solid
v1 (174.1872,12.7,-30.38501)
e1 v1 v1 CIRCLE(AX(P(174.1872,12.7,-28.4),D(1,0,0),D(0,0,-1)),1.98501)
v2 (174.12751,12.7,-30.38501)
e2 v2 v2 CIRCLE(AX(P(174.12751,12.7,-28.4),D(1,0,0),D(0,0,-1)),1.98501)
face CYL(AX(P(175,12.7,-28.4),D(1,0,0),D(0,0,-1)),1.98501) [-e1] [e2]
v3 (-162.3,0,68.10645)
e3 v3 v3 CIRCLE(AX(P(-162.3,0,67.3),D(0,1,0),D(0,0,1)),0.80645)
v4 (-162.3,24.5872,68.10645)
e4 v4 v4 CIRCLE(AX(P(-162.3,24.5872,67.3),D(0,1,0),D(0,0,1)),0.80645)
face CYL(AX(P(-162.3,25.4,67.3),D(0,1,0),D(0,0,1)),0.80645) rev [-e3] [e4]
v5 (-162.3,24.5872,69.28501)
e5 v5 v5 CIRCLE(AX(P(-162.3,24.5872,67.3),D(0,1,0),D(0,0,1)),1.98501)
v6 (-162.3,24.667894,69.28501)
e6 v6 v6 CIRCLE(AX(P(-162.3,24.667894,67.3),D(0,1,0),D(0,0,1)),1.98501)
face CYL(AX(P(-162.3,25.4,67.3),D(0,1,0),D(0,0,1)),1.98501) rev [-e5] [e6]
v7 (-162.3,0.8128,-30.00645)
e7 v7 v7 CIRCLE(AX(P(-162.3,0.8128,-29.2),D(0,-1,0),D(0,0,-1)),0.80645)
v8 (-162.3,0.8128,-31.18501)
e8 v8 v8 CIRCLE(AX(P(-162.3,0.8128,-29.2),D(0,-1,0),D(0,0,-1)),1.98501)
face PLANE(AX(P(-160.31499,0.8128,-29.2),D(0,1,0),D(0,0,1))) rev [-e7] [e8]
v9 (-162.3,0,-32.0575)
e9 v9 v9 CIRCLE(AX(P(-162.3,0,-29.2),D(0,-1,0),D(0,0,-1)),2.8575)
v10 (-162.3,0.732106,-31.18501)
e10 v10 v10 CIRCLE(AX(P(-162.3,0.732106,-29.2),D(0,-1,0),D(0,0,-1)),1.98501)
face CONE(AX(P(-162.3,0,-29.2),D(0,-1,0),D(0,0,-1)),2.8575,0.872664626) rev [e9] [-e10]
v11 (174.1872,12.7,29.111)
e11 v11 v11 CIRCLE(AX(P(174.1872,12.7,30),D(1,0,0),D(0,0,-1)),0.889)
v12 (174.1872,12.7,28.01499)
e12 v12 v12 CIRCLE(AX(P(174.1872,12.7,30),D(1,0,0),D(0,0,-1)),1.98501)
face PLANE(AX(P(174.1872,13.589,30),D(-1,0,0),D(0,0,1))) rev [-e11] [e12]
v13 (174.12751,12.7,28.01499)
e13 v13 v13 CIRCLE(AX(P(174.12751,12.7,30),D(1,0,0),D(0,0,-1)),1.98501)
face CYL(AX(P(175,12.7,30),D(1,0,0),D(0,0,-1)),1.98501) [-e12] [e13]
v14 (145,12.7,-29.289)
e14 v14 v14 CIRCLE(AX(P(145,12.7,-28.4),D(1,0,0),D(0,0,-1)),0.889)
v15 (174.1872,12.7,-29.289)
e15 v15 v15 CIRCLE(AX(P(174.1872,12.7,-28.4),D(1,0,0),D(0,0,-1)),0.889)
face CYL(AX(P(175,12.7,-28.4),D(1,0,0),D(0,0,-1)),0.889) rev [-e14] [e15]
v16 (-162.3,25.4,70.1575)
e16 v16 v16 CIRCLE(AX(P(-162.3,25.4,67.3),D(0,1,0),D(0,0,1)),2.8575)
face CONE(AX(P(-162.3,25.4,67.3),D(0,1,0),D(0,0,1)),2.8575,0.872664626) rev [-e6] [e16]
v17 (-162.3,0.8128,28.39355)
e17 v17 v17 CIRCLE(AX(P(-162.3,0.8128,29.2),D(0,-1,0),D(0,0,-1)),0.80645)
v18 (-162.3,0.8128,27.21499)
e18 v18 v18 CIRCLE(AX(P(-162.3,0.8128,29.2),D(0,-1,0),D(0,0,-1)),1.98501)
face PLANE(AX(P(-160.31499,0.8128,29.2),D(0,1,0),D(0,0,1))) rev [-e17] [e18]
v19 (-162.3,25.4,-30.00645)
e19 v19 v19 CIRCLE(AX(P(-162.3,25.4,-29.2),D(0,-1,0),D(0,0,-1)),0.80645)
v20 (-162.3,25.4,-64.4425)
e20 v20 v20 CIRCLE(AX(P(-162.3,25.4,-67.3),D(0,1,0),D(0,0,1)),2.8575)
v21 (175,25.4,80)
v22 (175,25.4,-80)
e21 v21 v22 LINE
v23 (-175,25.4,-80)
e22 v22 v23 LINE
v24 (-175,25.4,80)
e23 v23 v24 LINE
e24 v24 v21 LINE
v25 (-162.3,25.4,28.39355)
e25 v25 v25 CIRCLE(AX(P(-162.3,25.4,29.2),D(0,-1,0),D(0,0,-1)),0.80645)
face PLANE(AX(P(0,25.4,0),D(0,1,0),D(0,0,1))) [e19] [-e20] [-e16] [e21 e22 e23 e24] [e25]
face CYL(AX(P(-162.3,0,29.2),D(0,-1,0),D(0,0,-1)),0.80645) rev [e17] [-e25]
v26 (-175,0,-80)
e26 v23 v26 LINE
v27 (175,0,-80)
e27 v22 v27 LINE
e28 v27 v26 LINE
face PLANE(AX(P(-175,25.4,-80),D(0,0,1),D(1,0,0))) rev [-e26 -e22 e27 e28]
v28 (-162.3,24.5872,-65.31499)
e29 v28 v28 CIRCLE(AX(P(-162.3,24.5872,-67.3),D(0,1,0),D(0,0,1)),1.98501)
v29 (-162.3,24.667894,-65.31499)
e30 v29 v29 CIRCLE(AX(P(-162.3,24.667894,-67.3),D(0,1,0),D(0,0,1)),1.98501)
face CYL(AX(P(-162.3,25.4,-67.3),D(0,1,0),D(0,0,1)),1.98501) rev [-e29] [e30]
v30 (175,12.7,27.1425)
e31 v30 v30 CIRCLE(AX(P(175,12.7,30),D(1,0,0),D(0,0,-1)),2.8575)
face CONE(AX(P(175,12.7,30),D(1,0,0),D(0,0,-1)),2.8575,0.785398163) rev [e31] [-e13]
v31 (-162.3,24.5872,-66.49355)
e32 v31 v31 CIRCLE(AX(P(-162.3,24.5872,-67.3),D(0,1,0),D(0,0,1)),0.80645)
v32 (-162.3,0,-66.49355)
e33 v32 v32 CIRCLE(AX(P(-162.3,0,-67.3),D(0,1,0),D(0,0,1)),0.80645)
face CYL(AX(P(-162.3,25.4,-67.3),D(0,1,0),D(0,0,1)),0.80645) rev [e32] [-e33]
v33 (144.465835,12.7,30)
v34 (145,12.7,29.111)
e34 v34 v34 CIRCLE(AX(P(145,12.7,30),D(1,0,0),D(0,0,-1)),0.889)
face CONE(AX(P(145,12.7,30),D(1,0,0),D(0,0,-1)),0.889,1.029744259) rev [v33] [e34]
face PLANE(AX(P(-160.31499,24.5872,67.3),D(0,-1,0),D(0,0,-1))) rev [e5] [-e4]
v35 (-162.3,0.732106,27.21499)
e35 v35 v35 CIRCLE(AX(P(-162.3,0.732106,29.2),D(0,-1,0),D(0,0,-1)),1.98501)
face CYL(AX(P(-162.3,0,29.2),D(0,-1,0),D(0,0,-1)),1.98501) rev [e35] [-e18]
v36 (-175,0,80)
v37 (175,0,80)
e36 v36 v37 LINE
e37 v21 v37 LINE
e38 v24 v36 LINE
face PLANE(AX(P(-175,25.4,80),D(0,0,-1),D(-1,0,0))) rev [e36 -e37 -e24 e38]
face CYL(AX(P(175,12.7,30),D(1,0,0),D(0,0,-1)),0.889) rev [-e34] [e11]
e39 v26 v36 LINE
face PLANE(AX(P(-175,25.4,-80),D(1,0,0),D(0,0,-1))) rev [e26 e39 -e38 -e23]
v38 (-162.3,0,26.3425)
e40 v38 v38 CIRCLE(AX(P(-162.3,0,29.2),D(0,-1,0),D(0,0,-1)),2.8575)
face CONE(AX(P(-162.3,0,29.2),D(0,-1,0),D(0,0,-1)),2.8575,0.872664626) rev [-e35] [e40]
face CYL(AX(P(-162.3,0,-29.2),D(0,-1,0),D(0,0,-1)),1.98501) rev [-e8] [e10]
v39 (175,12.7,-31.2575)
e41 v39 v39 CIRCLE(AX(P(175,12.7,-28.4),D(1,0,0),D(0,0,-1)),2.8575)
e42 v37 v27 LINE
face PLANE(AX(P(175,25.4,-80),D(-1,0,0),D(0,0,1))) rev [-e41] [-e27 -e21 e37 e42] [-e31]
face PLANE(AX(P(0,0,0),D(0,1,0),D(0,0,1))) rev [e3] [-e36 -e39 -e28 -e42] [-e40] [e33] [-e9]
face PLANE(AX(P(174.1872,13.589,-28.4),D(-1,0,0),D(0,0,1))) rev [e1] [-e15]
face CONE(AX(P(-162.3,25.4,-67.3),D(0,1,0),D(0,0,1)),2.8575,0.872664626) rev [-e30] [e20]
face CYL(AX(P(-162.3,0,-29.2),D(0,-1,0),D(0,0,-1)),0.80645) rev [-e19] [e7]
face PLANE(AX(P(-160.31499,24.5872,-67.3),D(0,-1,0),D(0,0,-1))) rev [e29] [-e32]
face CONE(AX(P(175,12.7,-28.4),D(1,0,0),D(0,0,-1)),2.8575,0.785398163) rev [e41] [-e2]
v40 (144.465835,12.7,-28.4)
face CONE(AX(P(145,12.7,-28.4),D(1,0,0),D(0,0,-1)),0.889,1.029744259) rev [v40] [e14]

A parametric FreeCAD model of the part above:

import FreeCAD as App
import Part
import Sketcher
from FreeCAD import Vector
Q = App.Units.Quantity


def add_polygon(sketch, points):
    """Adds a closed chain of lines whose ends are joined by coincident constraints."""
    first, n = sketch.GeometryCount, len(points)
    for a, b in zip(points, points[1:] + points[:1]):
        sketch.addGeometry(Part.LineSegment(App.Vector(*a, 0), App.Vector(*b, 0)), False)
    for i in range(n):
        sketch.addConstraint(Sketcher.Constraint("Coincident", first + i, 2, first + (i + 1) % n, 1))

doc = App.newDocument("Part")
params = doc.addObject("Spreadsheet::Sheet", "Params")
for row, (alias, value) in enumerate([
    ("sketch1_width", "350 mm"),
    ("sketch1_height", "160 mm"),
    ("pad1_length", "25.4 mm"),
    ("groove_angle", "360 deg"),
    ("linearpattern_pitch", "58.4 mm"),
    ("sketch3_width", "25.4 mm"),
    ("groove2_angle", "360 deg"),
    ("linearpattern2_pitch", "134.6 mm"),
    ("sketch4_width", "25.4 mm"),
    ("groove3_angle", "360 deg"),
    ("linearpattern3_pitch", "58.4 mm"),
], start=1):
    params.set(f"A{row}", alias)
    params.set(f"B{row}", "=" + value)
    params.setAlias(f"B{row}", alias)

body = doc.addObject("PartDesign::Body", "Body")

sketch1 = body.newObject("Sketcher::SketchObject", "Sketch")
sketch1.AttachmentSupport = (doc.getObject("XZ_Plane"), [""])
sketch1.MapMode = "FlatFace"
add_polygon(sketch1, [(-175, -80), (-175, 80), (175, 80), (175, -80)])
sketch1.addConstraint(Sketcher.Constraint("Vertical", 0))
sketch1.addConstraint(Sketcher.Constraint("Horizontal", 1))
sketch1.addConstraint(Sketcher.Constraint("Vertical", 2))
sketch1.addConstraint(Sketcher.Constraint("Horizontal", 3))
sketch1.addConstraint(Sketcher.Constraint("Symmetric", 0, 2, 2, 2, -1, 1))
sketch1.addConstraint(Sketcher.Constraint("DistanceX", 1, 1, 1, 2, 350.0))
sketch1.addConstraint(Sketcher.Constraint("DistanceY", 0, 1, 0, 2, 160.0))
sketch1.setExpression("Constraints[9]", "Params.sketch1_width")
sketch1.setExpression("Constraints[10]", "Params.sketch1_height")
pad1 = body.newObject("PartDesign::Pad", "Pad")
pad1.Profile = sketch1
pad1.setExpression("Length", "Params.pad1_length")
pad1.Reversed = True

sketch2 = body.newObject("Sketcher::SketchObject", "Sketch001")
sketch2.AttachmentSupport = (doc.getObject("XZ_Plane"), [""])
sketch2.MapMode = "FlatFace"
sketch2.AttachmentOffset = App.Placement(Vector(0, 0, -12.7), App.Rotation())
add_polygon(sketch2, [(144.47, 30), (175, 30), (175, 27.14), (174.13, 28.01), (174.19, 28.01), (174.19, 29.11), (145, 29.11)])
sketch2.addGeometry(Part.LineSegment(Vector(175, 30, 0), Vector(144.47, 30, 0)), True)
sketch2.addConstraint(Sketcher.Constraint("Horizontal", 0))
sketch2.addConstraint(Sketcher.Constraint("Vertical", 1))
sketch2.addConstraint(Sketcher.Constraint("Horizontal", 3))
sketch2.addConstraint(Sketcher.Constraint("Vertical", 4))
sketch2.addConstraint(Sketcher.Constraint("Horizontal", 5))
sketch2.addConstraint(Sketcher.Constraint("Horizontal", 7))
sketch2.addConstraint(Sketcher.Constraint("Coincident", 7, 1, 0, 2))
sketch2.addConstraint(Sketcher.Constraint("Equal", 0, 7))
sketch2.addConstraint(Sketcher.Constraint("Angle", 2, Q("135 deg")))
sketch2.addConstraint(Sketcher.Constraint("Angle", 6, Q("121 deg")))
sketch2.addConstraint(Sketcher.Constraint("DistanceX", -1, 1, 0, 2, 175.0))
sketch2.addConstraint(Sketcher.Constraint("DistanceY", -1, 1, 0, 2, 30.0))
sketch2.addConstraint(Sketcher.Constraint("DistanceX", -1, 1, 5, 2, 145.0))
sketch2.addConstraint(Sketcher.Constraint("DistanceX", 5, 2, 5, 1, 29.1872))
sketch2.addConstraint(Sketcher.Constraint("DistanceY", 1, 2, 1, 1, 2.8575))
sketch2.addConstraint(Sketcher.Constraint("DistanceY", -1, 1, 4, 2, 29.111))
sketch2.addConstraint(Sketcher.Constraint("DistanceX", 3, 1, 3, 2, 0.05969))
groove = body.newObject("PartDesign::Groove", "Groove")
groove.Profile = sketch2
groove.ReferenceAxis = (sketch2, ["Axis0"])
groove.setExpression("Angle", "Params.groove_angle")
doc.recompute()

linearpattern = body.newObject("PartDesign::LinearPattern", "LinearPattern")
linearpattern.Originals = [groove]
linearpattern.Direction = (doc.getObject("Z_Axis"), [""])
linearpattern.Mode = "offset"
linearpattern.setExpression("Offset", "Params.linearpattern_pitch")
linearpattern.Occurrences = 2
linearpattern.Reversed = True
body.Tip = linearpattern

sketch3 = body.newObject("Sketcher::SketchObject", "Sketch002")
sketch3.AttachmentSupport = (doc.getObject("YZ_Plane"), [""])
sketch3.MapMode = "FlatFace"
sketch3.AttachmentOffset = App.Placement(Vector(0, 0, -162.3), App.Rotation())
add_polygon(sketch3, [(0, 67.3), (25.4, 67.3), (25.4, 70.16), (24.67, 69.29), (24.59, 69.29), (24.59, 68.11), (0, 68.11)])
sketch3.addGeometry(Part.LineSegment(Vector(25.4, 67.3, 0), Vector(0, 67.3, 0)), True)
sketch3.addConstraint(Sketcher.Constraint("Horizontal", 0))
sketch3.addConstraint(Sketcher.Constraint("Vertical", 1))
sketch3.addConstraint(Sketcher.Constraint("Horizontal", 3))
sketch3.addConstraint(Sketcher.Constraint("Vertical", 4))
sketch3.addConstraint(Sketcher.Constraint("Horizontal", 5))
sketch3.addConstraint(Sketcher.Constraint("Vertical", 6))
sketch3.addConstraint(Sketcher.Constraint("Horizontal", 7))
sketch3.addConstraint(Sketcher.Constraint("Coincident", 7, 1, 0, 2))
sketch3.addConstraint(Sketcher.Constraint("PointOnObject", 5, 2, -2))
sketch3.addConstraint(Sketcher.Constraint("PointOnObject", 7, 2, -2))
sketch3.addConstraint(Sketcher.Constraint("Angle", 2, Q("-130 deg")))
sketch3.addConstraint(Sketcher.Constraint("DistanceX", 0, 1, 0, 2, 25.4))
sketch3.addConstraint(Sketcher.Constraint("DistanceY", -1, 1, 0, 2, 67.3))
sketch3.addConstraint(Sketcher.Constraint("DistanceX", 5, 2, 5, 1, 24.5872))
sketch3.addConstraint(Sketcher.Constraint("DistanceY", 1, 1, 1, 2, 2.8575))
sketch3.addConstraint(Sketcher.Constraint("DistanceY", 4, 2, 4, 1, 1.17856))
sketch3.addConstraint(Sketcher.Constraint("DistanceY", 6, 2, 6, 1, 0.80645))
sketch3.setExpression("Constraints[18]", "Params.sketch3_width")
groove2 = body.newObject("PartDesign::Groove", "Groove001")
groove2.Profile = sketch3
groove2.ReferenceAxis = (sketch3, ["Axis0"])
groove2.setExpression("Angle", "Params.groove2_angle")
doc.recompute()

linearpattern2 = body.newObject("PartDesign::LinearPattern", "LinearPattern001")
linearpattern2.Originals = [groove2]
linearpattern2.Direction = (doc.getObject("Z_Axis"), [""])
linearpattern2.Mode = "offset"
linearpattern2.setExpression("Offset", "Params.linearpattern2_pitch")
linearpattern2.Occurrences = 2
linearpattern2.Reversed = True
body.Tip = linearpattern2

sketch4 = body.newObject("Sketcher::SketchObject", "Sketch003")
sketch4.AttachmentSupport = (doc.getObject("YZ_Plane"), [""])
sketch4.MapMode = "FlatFace"
sketch4.AttachmentOffset = App.Placement(Vector(0, 0, -162.3), App.Rotation())
add_polygon(sketch4, [(25.4, -29.2), (0, -29.2), (0, -32.06), (0.73, -31.19), (0.81, -31.19), (0.81, -30.01), (25.4, -30.01)])
sketch4.addGeometry(Part.LineSegment(Vector(0, -29.2, 0), Vector(25.4, -29.2, 0)), True)
sketch4.addConstraint(Sketcher.Constraint("Horizontal", 0))
sketch4.addConstraint(Sketcher.Constraint("Vertical", 1))
sketch4.addConstraint(Sketcher.Constraint("Horizontal", 3))
sketch4.addConstraint(Sketcher.Constraint("Vertical", 4))
sketch4.addConstraint(Sketcher.Constraint("Horizontal", 5))
sketch4.addConstraint(Sketcher.Constraint("Vertical", 6))
sketch4.addConstraint(Sketcher.Constraint("Horizontal", 7))
sketch4.addConstraint(Sketcher.Constraint("Coincident", 7, 1, 0, 2))
sketch4.addConstraint(Sketcher.Constraint("PointOnObject", 0, 2, -2))
sketch4.addConstraint(Sketcher.Constraint("Vertical", 5, 2, 7, 2))
sketch4.addConstraint(Sketcher.Constraint("Angle", 2, Q("50 deg")))
sketch4.addConstraint(Sketcher.Constraint("DistanceX", 0, 2, 0, 1, 25.4))
sketch4.addConstraint(Sketcher.Constraint("DistanceY", 0, 2, -1, 1, 29.2))
sketch4.addConstraint(Sketcher.Constraint("DistanceX", 5, 1, 5, 2, 24.5872))
sketch4.addConstraint(Sketcher.Constraint("DistanceY", 1, 2, 1, 1, 2.8575))
sketch4.addConstraint(Sketcher.Constraint("DistanceY", 4, 1, 4, 2, 1.17856))
sketch4.addConstraint(Sketcher.Constraint("DistanceY", 6, 1, 6, 2, 0.80645))
sketch4.setExpression("Constraints[18]", "Params.sketch4_width")
groove3 = body.newObject("PartDesign::Groove", "Groove002")
groove3.Profile = sketch4
groove3.ReferenceAxis = (sketch4, ["Axis0"])
groove3.setExpression("Angle", "Params.groove3_angle")
doc.recompute()

linearpattern3 = body.newObject("PartDesign::LinearPattern", "LinearPattern002")
linearpattern3.Originals = [groove3]
linearpattern3.Direction = (doc.getObject("Z_Axis"), [""])
linearpattern3.Mode = "offset"
linearpattern3.setExpression("Offset", "Params.linearpattern3_pitch")
linearpattern3.Occurrences = 2
body.Tip = linearpattern3

doc.recompute()
